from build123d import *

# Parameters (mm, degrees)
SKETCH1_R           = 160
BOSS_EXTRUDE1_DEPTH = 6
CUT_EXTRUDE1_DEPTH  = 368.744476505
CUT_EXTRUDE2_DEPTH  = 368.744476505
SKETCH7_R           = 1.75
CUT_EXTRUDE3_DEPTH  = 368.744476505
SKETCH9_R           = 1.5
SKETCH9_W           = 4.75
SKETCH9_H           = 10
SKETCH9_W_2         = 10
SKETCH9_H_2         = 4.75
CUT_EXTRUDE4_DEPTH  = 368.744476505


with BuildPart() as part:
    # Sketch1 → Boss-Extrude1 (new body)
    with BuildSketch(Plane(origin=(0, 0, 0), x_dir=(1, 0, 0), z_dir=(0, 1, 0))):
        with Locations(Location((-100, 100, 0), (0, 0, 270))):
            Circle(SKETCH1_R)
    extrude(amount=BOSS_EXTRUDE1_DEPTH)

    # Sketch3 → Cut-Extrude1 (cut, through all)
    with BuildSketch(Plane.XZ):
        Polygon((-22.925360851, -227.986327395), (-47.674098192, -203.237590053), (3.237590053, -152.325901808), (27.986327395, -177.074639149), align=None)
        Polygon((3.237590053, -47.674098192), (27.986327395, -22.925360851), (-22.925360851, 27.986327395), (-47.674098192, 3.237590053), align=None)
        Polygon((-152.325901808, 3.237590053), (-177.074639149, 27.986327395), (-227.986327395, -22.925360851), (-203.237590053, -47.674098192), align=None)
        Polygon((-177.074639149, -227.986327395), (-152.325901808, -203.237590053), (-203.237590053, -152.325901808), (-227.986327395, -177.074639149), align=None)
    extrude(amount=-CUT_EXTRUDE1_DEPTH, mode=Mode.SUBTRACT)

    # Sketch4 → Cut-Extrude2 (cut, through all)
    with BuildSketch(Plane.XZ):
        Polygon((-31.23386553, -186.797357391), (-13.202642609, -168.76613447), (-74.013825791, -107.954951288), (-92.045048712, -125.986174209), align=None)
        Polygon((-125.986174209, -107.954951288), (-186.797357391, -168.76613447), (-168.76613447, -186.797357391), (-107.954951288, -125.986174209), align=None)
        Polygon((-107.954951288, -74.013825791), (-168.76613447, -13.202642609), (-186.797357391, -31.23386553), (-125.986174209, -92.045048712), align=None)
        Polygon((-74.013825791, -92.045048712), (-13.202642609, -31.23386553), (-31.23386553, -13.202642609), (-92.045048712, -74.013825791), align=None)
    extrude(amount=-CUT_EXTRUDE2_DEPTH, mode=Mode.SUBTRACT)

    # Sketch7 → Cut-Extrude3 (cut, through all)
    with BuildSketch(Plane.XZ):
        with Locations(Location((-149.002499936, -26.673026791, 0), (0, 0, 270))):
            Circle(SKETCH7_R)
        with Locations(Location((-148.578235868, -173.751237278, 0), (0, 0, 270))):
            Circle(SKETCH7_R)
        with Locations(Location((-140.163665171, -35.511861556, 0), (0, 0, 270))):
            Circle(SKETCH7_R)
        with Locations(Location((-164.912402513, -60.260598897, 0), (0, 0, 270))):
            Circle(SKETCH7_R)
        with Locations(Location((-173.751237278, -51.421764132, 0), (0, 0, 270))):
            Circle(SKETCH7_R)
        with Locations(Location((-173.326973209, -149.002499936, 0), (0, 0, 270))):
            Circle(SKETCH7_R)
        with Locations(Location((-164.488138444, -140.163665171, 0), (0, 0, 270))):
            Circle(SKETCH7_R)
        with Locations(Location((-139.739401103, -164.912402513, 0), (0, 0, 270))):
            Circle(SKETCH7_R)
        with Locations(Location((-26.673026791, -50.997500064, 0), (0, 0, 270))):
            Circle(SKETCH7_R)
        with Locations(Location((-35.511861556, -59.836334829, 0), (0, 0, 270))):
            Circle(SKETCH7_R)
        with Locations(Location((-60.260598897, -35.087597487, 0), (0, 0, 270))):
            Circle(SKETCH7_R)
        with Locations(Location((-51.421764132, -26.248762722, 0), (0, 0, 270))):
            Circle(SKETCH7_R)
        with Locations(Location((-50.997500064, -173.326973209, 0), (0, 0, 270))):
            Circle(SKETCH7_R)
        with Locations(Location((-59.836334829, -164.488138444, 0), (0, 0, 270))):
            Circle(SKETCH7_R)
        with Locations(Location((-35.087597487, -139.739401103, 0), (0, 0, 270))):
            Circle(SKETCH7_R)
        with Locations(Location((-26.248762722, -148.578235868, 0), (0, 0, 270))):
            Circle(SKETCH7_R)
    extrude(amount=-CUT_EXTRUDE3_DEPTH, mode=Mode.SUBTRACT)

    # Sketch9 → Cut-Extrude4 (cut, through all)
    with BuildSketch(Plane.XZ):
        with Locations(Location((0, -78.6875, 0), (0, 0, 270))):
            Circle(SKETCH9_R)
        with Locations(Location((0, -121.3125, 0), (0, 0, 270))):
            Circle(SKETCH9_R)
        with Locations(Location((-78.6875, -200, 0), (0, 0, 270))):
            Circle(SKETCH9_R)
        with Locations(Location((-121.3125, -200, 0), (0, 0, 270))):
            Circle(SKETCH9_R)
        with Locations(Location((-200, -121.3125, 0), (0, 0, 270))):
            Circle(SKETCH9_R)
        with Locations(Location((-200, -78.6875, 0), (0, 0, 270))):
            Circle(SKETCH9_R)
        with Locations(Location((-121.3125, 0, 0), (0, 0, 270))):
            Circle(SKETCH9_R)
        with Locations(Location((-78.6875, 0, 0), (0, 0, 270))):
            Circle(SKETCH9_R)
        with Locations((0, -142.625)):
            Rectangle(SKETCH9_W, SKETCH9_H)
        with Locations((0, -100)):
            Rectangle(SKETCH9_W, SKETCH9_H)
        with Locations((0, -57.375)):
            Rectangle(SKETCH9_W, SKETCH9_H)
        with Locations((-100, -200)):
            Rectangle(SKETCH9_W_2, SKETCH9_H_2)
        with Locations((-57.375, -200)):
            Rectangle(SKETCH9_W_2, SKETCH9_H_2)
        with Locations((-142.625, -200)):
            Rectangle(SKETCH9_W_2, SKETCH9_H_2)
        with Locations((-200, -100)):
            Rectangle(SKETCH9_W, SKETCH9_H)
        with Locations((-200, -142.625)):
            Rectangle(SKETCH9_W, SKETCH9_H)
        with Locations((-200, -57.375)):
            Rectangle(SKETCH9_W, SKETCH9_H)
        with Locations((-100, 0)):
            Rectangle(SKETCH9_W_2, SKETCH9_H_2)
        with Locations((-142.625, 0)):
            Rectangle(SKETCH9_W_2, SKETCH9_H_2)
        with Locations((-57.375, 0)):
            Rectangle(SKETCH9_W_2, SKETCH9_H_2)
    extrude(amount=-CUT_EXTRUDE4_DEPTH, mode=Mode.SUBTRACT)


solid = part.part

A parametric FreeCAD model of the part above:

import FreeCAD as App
import Part
import Sketcher

V = App.Vector

doc = App.newDocument("Part")
body = doc.addObject("PartDesign::Body", "Body")

# Sketch on XZ plane
sketch1 = body.newObject("Sketcher::SketchObject", "Sketch")
sketch1.AttachmentSupport = (doc.getObject("XZ_Plane"), [""])
sketch1.MapMode = "FlatFace"
sketch1.addGeometry(Part.Circle(V(-100, -100, 0), V(0, 0, 1), 160), False)
sketch1.addConstraint(Sketcher.Constraint("Diameter", 0, 320.0))
sketch1.addConstraint(Sketcher.Constraint("DistanceX", 0, 3, -1, 1, 100.0))
sketch1.addConstraint(Sketcher.Constraint("DistanceY", 0, 3, -1, 1, 100.0))
pad1 = body.newObject("PartDesign::Pad", "Pad")
pad1.Profile = sketch1
pad1.Length = 6
pad1.Reversed = True

# Sketch on XZ plane
sketch2 = body.newObject("Sketcher::SketchObject", "Sketch001")
sketch2.AttachmentSupport = (doc.getObject("XZ_Plane"), [""])
sketch2.MapMode = "FlatFace"
sketch2.addGeometry(Part.LineSegment(V(-48, -203, 0), V(-23, -228, 0)), False)
sketch2.addGeometry(Part.LineSegment(V(-23, -228, 0), V(28, -177, 0)), False)
sketch2.addGeometry(Part.LineSegment(V(28, -177, 0), V(3, -152, 0)), False)
sketch2.addGeometry(Part.LineSegment(V(3, -152, 0), V(-48, -203, 0)), False)
sketch2.addGeometry(Part.LineSegment(V(3, -48, 0), V(28, -23, 0)), False)
sketch2.addGeometry(Part.LineSegment(V(28, -23, 0), V(-23, 28, 0)), False)
sketch2.addGeometry(Part.LineSegment(V(-23, 28, 0), V(-48, 3, 0)), False)
sketch2.addGeometry(Part.LineSegment(V(-48, 3, 0), V(3, -48, 0)), False)
sketch2.addGeometry(Part.LineSegment(V(-152, 3, 0), V(-177, 28, 0)), False)
sketch2.addGeometry(Part.LineSegment(V(-177, 28, 0), V(-228, -23, 0)), False)
sketch2.addGeometry(Part.LineSegment(V(-228, -23, 0), V(-203, -48, 0)), False)
sketch2.addGeometry(Part.LineSegment(V(-203, -48, 0), V(-152, 3, 0)), False)
sketch2.addGeometry(Part.LineSegment(V(-177, -228, 0), V(-152, -203, 0)), False)
sketch2.addGeometry(Part.LineSegment(V(-152, -203, 0), V(-203, -152, 0)), False)
sketch2.addGeometry(Part.LineSegment(V(-203, -152, 0), V(-228, -177, 0)), False)
sketch2.addGeometry(Part.LineSegment(V(-228, -177, 0), V(-177, -228, 0)), False)
sketch2.addConstraint(Sketcher.Constraint("Coincident", 0, 2, 1, 1))
sketch2.addConstraint(Sketcher.Constraint("Coincident", 1, 2, 2, 1))
sketch2.addConstraint(Sketcher.Constraint("Coincident", 2, 2, 3, 1))
sketch2.addConstraint(Sketcher.Constraint("Coincident", 3, 2, 0, 1))
sketch2.addConstraint(Sketcher.Constraint("Coincident", 4, 2, 5, 1))
sketch2.addConstraint(Sketcher.Constraint("Coincident", 5, 2, 6, 1))
sketch2.addConstraint(Sketcher.Constraint("Coincident", 6, 2, 7, 1))
sketch2.addConstraint(Sketcher.Constraint("Coincident", 7, 2, 4, 1))
sketch2.addConstraint(Sketcher.Constraint("Coincident", 8, 2, 9, 1))
sketch2.addConstraint(Sketcher.Constraint("Coincident", 9, 2, 10, 1))
sketch2.addConstraint(Sketcher.Constraint("Coincident", 10, 2, 11, 1))
sketch2.addConstraint(Sketcher.Constraint("Coincident", 11, 2, 8, 1))
sketch2.addConstraint(Sketcher.Constraint("Coincident", 12, 2, 13, 1))
sketch2.addConstraint(Sketcher.Constraint("Coincident", 13, 2, 14, 1))
sketch2.addConstraint(Sketcher.Constraint("Coincident", 14, 2, 15, 1))
sketch2.addConstraint(Sketcher.Constraint("Coincident", 15, 2, 12, 1))
sketch2.addConstraint(Sketcher.Constraint("Perpendicular", 0, 1))
sketch2.addConstraint(Sketcher.Constraint("Perpendicular", 1, 2))
sketch2.addConstraint(Sketcher.Constraint("Perpendicular", 2, 3))
sketch2.addConstraint(Sketcher.Constraint("Parallel", 3, 4))
sketch2.addConstraint(Sketcher.Constraint("Perpendicular", 4, 5))
sketch2.addConstraint(Sketcher.Constraint("Perpendicular", 5, 6))
sketch2.addConstraint(Sketcher.Constraint("Perpendicular", 6, 7))
sketch2.addConstraint(Sketcher.Constraint("Parallel", 7, 8))
sketch2.addConstraint(Sketcher.Constraint("Perpendicular", 8, 9))
sketch2.addConstraint(Sketcher.Constraint("Perpendicular", 9, 10))
sketch2.addConstraint(Sketcher.Constraint("Perpendicular", 10, 11))
sketch2.addConstraint(Sketcher.Constraint("Parallel", 11, 12))
sketch2.addConstraint(Sketcher.Constraint("Perpendicular", 12, 13))
sketch2.addConstraint(Sketcher.Constraint("Perpendicular", 13, 14))
sketch2.addConstraint(Sketcher.Constraint("Perpendicular", 14, 15))
sketch2.addConstraint(Sketcher.Constraint("Horizontal", 5, 2, 8, 2))
sketch2.addConstraint(Sketcher.Constraint("Horizontal", 4, 2, 9, 2))
sketch2.addConstraint(Sketcher.Constraint("Horizontal", 7, 2, 10, 2))
sketch2.addConstraint(Sketcher.Constraint("Horizontal", 3, 2, 12, 2))
sketch2.addConstraint(Sketcher.Constraint("Horizontal", 2, 2, 13, 2))
sketch2.addConstraint(Sketcher.Constraint("Horizontal", 1, 2, 14, 2))
sketch2.addConstraint(Sketcher.Constraint("Vertical", 1, 2, 4, 2))
sketch2.addConstraint(Sketcher.Constraint("Vertical", 0, 2, 5, 2))
sketch2.addConstraint(Sketcher.Constraint("Vertical", 3, 2, 6, 2))
sketch2.addConstraint(Sketcher.Constraint("Vertical", 11, 2, 12, 2))
sketch2.addConstraint(Sketcher.Constraint("Vertical", 10, 2, 13, 2))
sketch2.addConstraint(Sketcher.Constraint("Distance", 0, 35.0))
sketch2.addConstraint(Sketcher.Constraint("Distance", 1, 72.0))
sketch2.addConstraint(Sketcher.Constraint("DistanceY", 2, 2, -1, 1, 152.325902))
sketch2.addConstraint(Sketcher.Constraint("DistanceX", 3, 2, -1, 1, 47.674098))
sketch2.addConstraint(Sketcher.Constraint("DistanceY", 7, 2, -1, 1, 47.674098))
sketch2.addConstraint(Sketcher.Constraint("DistanceX", 11, 2, -1, 1, 152.325902))
pocket1 = body.newObject("PartDesign::Pocket", "Pocket")
pocket1.Profile = sketch2
pocket1.Type = "ThroughAll"

# Sketch on XZ plane
sketch3 = body.newObject("Sketcher::SketchObject", "Sketch002")
sketch3.AttachmentSupport = (doc.getObject("XZ_Plane"), [""])
sketch3.MapMode = "FlatFace"
sketch3.addGeometry(Part.LineSegment(V(-31, -187, 0), V(-13, -169, 0)), False)
sketch3.addGeometry(Part.LineSegment(V(-13, -169, 0), V(-74, -108, 0)), False)
sketch3.addGeometry(Part.LineSegment(V(-74, -108, 0), V(-92, -126, 0)), False)
sketch3.addGeometry(Part.LineSegment(V(-92, -126, 0), V(-31, -187, 0)), False)
sketch3.addGeometry(Part.LineSegment(V(-126, -108, 0), V(-187, -169, 0)), False)
sketch3.addGeometry(Part.LineSegment(V(-187, -169, 0), V(-169, -187, 0)), False)
sketch3.addGeometry(Part.LineSegment(V(-169, -187, 0), V(-108, -126, 0)), False)
sketch3.addGeometry(Part.LineSegment(V(-108, -126, 0), V(-126, -108, 0)), False)
sketch3.addGeometry(Part.LineSegment(V(-108, -74, 0), V(-169, -13, 0)), False)
sketch3.addGeometry(Part.LineSegment(V(-169, -13, 0), V(-187, -31, 0)), False)
sketch3.addGeometry(Part.LineSegment(V(-187, -31, 0), V(-126, -92, 0)), False)
sketch3.addGeometry(Part.LineSegment(V(-126, -92, 0), V(-108, -74, 0)), False)
sketch3.addGeometry(Part.LineSegment(V(-74, -92, 0), V(-13, -31, 0)), False)
sketch3.addGeometry(Part.LineSegment(V(-13, -31, 0), V(-31, -13, 0)), False)
sketch3.addGeometry(Part.LineSegment(V(-31, -13, 0), V(-92, -74, 0)), False)
sketch3.addGeometry(Part.LineSegment(V(-92, -74, 0), V(-74, -92, 0)), False)
sketch3.addConstraint(Sketcher.Constraint("Coincident", 0, 2, 1, 1))
sketch3.addConstraint(Sketcher.Constraint("Coincident", 1, 2, 2, 1))
sketch3.addConstraint(Sketcher.Constraint("Coincident", 2, 2, 3, 1))
sketch3.addConstraint(Sketcher.Constraint("Coincident", 3, 2, 0, 1))
sketch3.addConstraint(Sketcher.Constraint("Coincident", 4, 2, 5, 1))
sketch3.addConstraint(Sketcher.Constraint("Coincident", 5, 2, 6, 1))
sketch3.addConstraint(Sketcher.Constraint("Coincident", 6, 2, 7, 1))
sketch3.addConstraint(Sketcher.Constraint("Coincident", 7, 2, 4, 1))
sketch3.addConstraint(Sketcher.Constraint("Coincident", 8, 2, 9, 1))
sketch3.addConstraint(Sketcher.Constraint("Coincident", 9, 2, 10, 1))
sketch3.addConstraint(Sketcher.Constraint("Coincident", 10, 2, 11, 1))
sketch3.addConstraint(Sketcher.Constraint("Coincident", 11, 2, 8, 1))
sketch3.addConstraint(Sketcher.Constraint("Coincident", 12, 2, 13, 1))
sketch3.addConstraint(Sketcher.Constraint("Coincident", 13, 2, 14, 1))
sketch3.addConstraint(Sketcher.Constraint("Coincident", 14, 2, 15, 1))
sketch3.addConstraint(Sketcher.Constraint("Coincident", 15, 2, 12, 1))
sketch3.addConstraint(Sketcher.Constraint("Perpendicular", 0, 1))
sketch3.addConstraint(Sketcher.Constraint("Perpendicular", 1, 2))
sketch3.addConstraint(Sketcher.Constraint("Perpendicular", 2, 3))
sketch3.addConstraint(Sketcher.Constraint("Perpendicular", 3, 4))
sketch3.addConstraint(Sketcher.Constraint("Perpendicular", 4, 5))
sketch3.addConstraint(Sketcher.Constraint("Perpendicular", 5, 6))
sketch3.addConstraint(Sketcher.Constraint("Perpendicular", 6, 7))
sketch3.addConstraint(Sketcher.Constraint("Parallel", 7, 8))
sketch3.addConstraint(Sketcher.Constraint("Perpendicular", 8, 9))
sketch3.addConstraint(Sketcher.Constraint("Perpendicular", 9, 10))
sketch3.addConstraint(Sketcher.Constraint("Perpendicular", 10, 11))
sketch3.addConstraint(Sketcher.Constraint("Parallel", 11, 12))
sketch3.addConstraint(Sketcher.Constraint("Perpendicular", 12, 13))
sketch3.addConstraint(Sketcher.Constraint("Perpendicular", 13, 14))
sketch3.addConstraint(Sketcher.Constraint("Perpendicular", 14, 15))
sketch3.addConstraint(Sketcher.Constraint("Horizontal", 0, 2, 4, 2))
sketch3.addConstraint(Sketcher.Constraint("Horizontal", 3, 2, 5, 2))
sketch3.addConstraint(Sketcher.Constraint("Horizontal", 2, 2, 6, 2))
sketch3.addConstraint(Sketcher.Constraint("Horizontal", 9, 2, 12, 2))
sketch3.addConstraint(Sketcher.Constraint("Horizontal", 8, 2, 13, 2))
sketch3.addConstraint(Sketcher.Constraint("Horizontal", 11, 2, 14, 2))
sketch3.addConstraint(Sketcher.Constraint("Vertical", 5, 2, 8, 2))
sketch3.addConstraint(Sketcher.Constraint("Vertical", 4, 2, 9, 2))
sketch3.addConstraint(Sketcher.Constraint("Vertical", 7, 2, 10, 2))
sketch3.addConstraint(Sketcher.Constraint("Vertical", 0, 2, 12, 2))
sketch3.addConstraint(Sketcher.Constraint("Vertical", 3, 2, 13, 2))
sketch3.addConstraint(Sketcher.Constraint("Distance", 1, 86.0))
sketch3.addConstraint(Sketcher.Constraint("Distance", 0, 25.5))
sketch3.addConstraint(Sketcher.Constraint("DistanceY", 1, 2, -1, 1, 107.954951))
sketch3.addConstraint(Sketcher.Constraint("DistanceX", 2, 2, -1, 1, 92.045049))
sketch3.addConstraint(Sketcher.Constraint("DistanceX", 6, 2, -1, 1, 107.954951))
sketch3.addConstraint(Sketcher.Constraint("DistanceY", 10, 2, -1, 1, 92.045049))
pocket2 = body.newObject("PartDesign::Pocket", "Pocket001")
pocket2.Profile = sketch3
pocket2.Type = "ThroughAll"

# Sketch on XZ plane
sketch4 = body.newObject("Sketcher::SketchObject", "Sketch003")
sketch4.AttachmentSupport = (doc.getObject("XZ_Plane"), [""])
sketch4.MapMode = "FlatFace"
sketch4.addGeometry(Part.Circle(V(-149, -26.7, 0), V(0, 0, 1), 1.8), False)
sketch4.addGeometry(Part.Circle(V(-148.6, -173.8, 0), V(0, 0, 1), 1.8), False)
sketch4.addGeometry(Part.Circle(V(-140.2, -35.5, 0), V(0, 0, 1), 1.8), False)
sketch4.addGeometry(Part.Circle(V(-164.9, -60.3, 0), V(0, 0, 1), 1.8), False)
sketch4.addGeometry(Part.Circle(V(-173.8, -51.4, 0), V(0, 0, 1), 1.8), False)
sketch4.addGeometry(Part.Circle(V(-173.3, -149, 0), V(0, 0, 1), 1.8), False)
sketch4.addGeometry(Part.Circle(V(-164.5, -140.2, 0), V(0, 0, 1), 1.8), False)
sketch4.addGeometry(Part.Circle(V(-139.7, -164.9, 0), V(0, 0, 1), 1.8), False)
sketch4.addGeometry(Part.Circle(V(-26.7, -51, 0), V(0, 0, 1), 1.8), False)
sketch4.addGeometry(Part.Circle(V(-35.5, -59.8, 0), V(0, 0, 1), 1.8), False)
sketch4.addGeometry(Part.Circle(V(-60.3, -35.1, 0), V(0, 0, 1), 1.8), False)
sketch4.addGeometry(Part.Circle(V(-51.4, -26.2, 0), V(0, 0, 1), 1.8), False)
sketch4.addGeometry(Part.Circle(V(-51, -173.3, 0), V(0, 0, 1), 1.8), False)
sketch4.addGeometry(Part.Circle(V(-59.8, -164.5, 0), V(0, 0, 1), 1.8), False)
sketch4.addGeometry(Part.Circle(V(-35.1, -139.7, 0), V(0, 0, 1), 1.8), False)
sketch4.addGeometry(Part.Circle(V(-26.2, -148.6, 0), V(0, 0, 1), 1.8), False)
sketch4.addConstraint(Sketcher.Constraint("Equal", 0, 1))
sketch4.addConstraint(Sketcher.Constraint("Equal", 1, 2))
sketch4.addConstraint(Sketcher.Constraint("Equal", 2, 3))
sketch4.addConstraint(Sketcher.Constraint("Equal", 3, 4))
sketch4.addConstraint(Sketcher.Constraint("Equal", 4, 5))
sketch4.addConstraint(Sketcher.Constraint("Equal", 5, 6))
sketch4.addConstraint(Sketcher.Constraint("Equal", 6, 7))
sketch4.addConstraint(Sketcher.Constraint("Equal", 7, 8))
sketch4.addConstraint(Sketcher.Constraint("Equal", 8, 9))
sketch4.addConstraint(Sketcher.Constraint("Equal", 9, 10))
sketch4.addConstraint(Sketcher.Constraint("Equal", 10, 11))
sketch4.addConstraint(Sketcher.Constraint("Equal", 11, 12))
sketch4.addConstraint(Sketcher.Constraint("Equal", 12, 13))
sketch4.addConstraint(Sketcher.Constraint("Equal", 13, 14))
sketch4.addConstraint(Sketcher.Constraint("Equal", 14, 15))
sketch4.addConstraint(Sketcher.Constraint("Diameter", 0, 3.5))
sketch4.addConstraint(Sketcher.Constraint("DistanceX", 4, 3, 1, 3, 25.173001))
sketch4.addConstraint(Sketcher.Constraint("DistanceX", 3, 3, 7, 3, 25.173001))
sketch4.addConstraint(Sketcher.Constraint("DistanceY", 3, 3, 10, 3, 25.173001))
sketch4.addConstraint(Sketcher.Constraint("DistanceY", 7, 3, 14, 3, 25.173001))
sketch4.addConstraint(Sketcher.Constraint("DistanceX", 0, 3, -1, 1, 149.0025))
sketch4.addConstraint(Sketcher.Constraint("DistanceY", 3, 3, -1, 1, 60.260599))
sketch4.addConstraint(Sketcher.Constraint("DistanceY", 5, 3, -1, 1, 149.0025))
sketch4.addConstraint(Sketcher.Constraint("DistanceX", 7, 3, -1, 1, 139.739401))
sketch4.addConstraint(Sketcher.Constraint("DistanceY", 8, 3, -1, 1, 50.9975))
sketch4.addConstraint(Sketcher.Constraint("DistanceX", 10, 3, -1, 1, 60.260599))
sketch4.addConstraint(Sketcher.Constraint("DistanceX", 12, 3, -1, 1, 50.9975))
sketch4.addConstraint(Sketcher.Constraint("DistanceY", 14, 3, -1, 1, 139.739401))
sketch4.addConstraint(Sketcher.Constraint("DistanceX", 4, 3, 6, 3, 9.263099))
sketch4.addConstraint(Sketcher.Constraint("DistanceY", 6, 3, 4, 3, 88.741901))
sketch4.addConstraint(Sketcher.Constraint("DistanceX", 2, 3, 11, 3, 88.741901))
sketch4.addConstraint(Sketcher.Constraint("DistanceY", 2, 3, 11, 3, 9.263099))
sketch4.addConstraint(Sketcher.Constraint("DistanceX", 1, 3, 13, 3, 88.741901))
sketch4.addConstraint(Sketcher.Constraint("DistanceY", 1, 3, 13, 3, 9.263099))
sketch4.addConstraint(Sketcher.Constraint("DistanceX", 9, 3, 15, 3, 9.263099))
sketch4.addConstraint(Sketcher.Constraint("DistanceY", 15, 3, 9, 3, 88.741901))
sketch4.addConstraint(Sketcher.Constraint("DistanceY", 2, 3, -1, 1, 35.511862))
sketch4.addConstraint(Sketcher.Constraint("DistanceX", 6, 3, -1, 1, 164.488138))
sketch4.addConstraint(Sketcher.Constraint("DistanceX", 9, 3, -1, 1, 35.511862))
sketch4.addConstraint(Sketcher.Constraint("DistanceY", 13, 3, -1, 1, 164.488138))
sketch4.addConstraint(Sketcher.Constraint("DistanceY", 1, 3, 0, 3, 147.07821))
sketch4.addConstraint(Sketcher.Constraint("DistanceX", 1, 3, 2, 3, 8.414571))
sketch4.addConstraint(Sketcher.Constraint("DistanceX", 5, 3, 3, 3, 8.414571))
sketch4.addConstraint(Sketcher.Constraint("DistanceY", 7, 3, 4, 3, 113.490638))
sketch4.addConstraint(Sketcher.Constraint("DistanceX", 2, 3, 8, 3, 113.490638))
sketch4.addConstraint(Sketcher.Constraint("DistanceY", 9, 3, 0, 3, 33.163308))
sketch4.addConstraint(Sketcher.Constraint("DistanceY", 12, 3, 7, 3, 8.414571))
sketch4.addConstraint(Sketcher.Constraint("DistanceX", 14, 3, 8, 3, 8.414571))
pocket3 = body.newObject("PartDesign::Pocket", "Pocket002")
pocket3.Profile = sketch4
pocket3.Type = "ThroughAll"

# Sketch on XZ plane
sketch5 = body.newObject("Sketcher::SketchObject", "Sketch004")
sketch5.AttachmentSupport = (doc.getObject("XZ_Plane"), [""])
sketch5.MapMode = "FlatFace"
sketch5.addGeometry(Part.Circle(V(0, -78.7, 0), V(0, 0, 1), 1.5), False)
sketch5.addGeometry(Part.Circle(V(0, -121.3, 0), V(0, 0, 1), 1.5), False)
sketch5.addGeometry(Part.Circle(V(-78.7, -200, 0), V(0, 0, 1), 1.5), False)
sketch5.addGeometry(Part.Circle(V(-121.3, -200, 0), V(0, 0, 1), 1.5), False)
sketch5.addGeometry(Part.Circle(V(-200, -121.3, 0), V(0, 0, 1), 1.5), False)
sketch5.addGeometry(Part.Circle(V(-200, -78.7, 0), V(0, 0, 1), 1.5), False)
sketch5.addGeometry(Part.Circle(V(-121.3, 0, 0), V(0, 0, 1), 1.5), False)
sketch5.addGeometry(Part.Circle(V(-78.7, 0, 0), V(0, 0, 1), 1.5), False)
sketch5.addGeometry(Part.LineSegment(V(-2.4, -137.6, 0), V(-2.4, -147.6, 0)), False)
sketch5.addGeometry(Part.LineSegment(V(-2.4, -147.6, 0), V(2.4, -147.6, 0)), False)
sketch5.addGeometry(Part.LineSegment(V(2.4, -147.6, 0), V(2.4, -137.6, 0)), False)
sketch5.addGeometry(Part.LineSegment(V(2.4, -137.6, 0), V(-2.4, -137.6, 0)), False)
sketch5.addGeometry(Part.LineSegment(V(-2.4, -95, 0), V(-2.4, -105, 0)), False)
sketch5.addGeometry(Part.LineSegment(V(-2.4, -105, 0), V(2.4, -105, 0)), False)
sketch5.addGeometry(Part.LineSegment(V(2.4, -105, 0), V(2.4, -95, 0)), False)
sketch5.addGeometry(Part.LineSegment(V(2.4, -95, 0), V(-2.4, -95, 0)), False)
sketch5.addGeometry(Part.LineSegment(V(-2.4, -52.4, 0), V(-2.4, -62.4, 0)), False)
sketch5.addGeometry(Part.LineSegment(V(-2.4, -62.4, 0), V(2.4, -62.4, 0)), False)
sketch5.addGeometry(Part.LineSegment(V(2.4, -62.4, 0), V(2.4, -52.4, 0)), False)
sketch5.addGeometry(Part.LineSegment(V(2.4, -52.4, 0), V(-2.4, -52.4, 0)), False)
sketch5.addGeometry(Part.LineSegment(V(-105, -197.6, 0), V(-105, -202.4, 0)), False)
sketch5.addGeometry(Part.LineSegment(V(-105, -202.4, 0), V(-95, -202.4, 0)), False)
sketch5.addGeometry(Part.LineSegment(V(-95, -202.4, 0), V(-95, -197.6, 0)), False)
sketch5.addGeometry(Part.LineSegment(V(-95, -197.6, 0), V(-105, -197.6, 0)), False)
sketch5.addGeometry(Part.LineSegment(V(-62.4, -197.6, 0), V(-62.4, -202.4, 0)), False)
sketch5.addGeometry(Part.LineSegment(V(-62.4, -202.4, 0), V(-52.4, -202.4, 0)), False)
sketch5.addGeometry(Part.LineSegment(V(-52.4, -202.4, 0), V(-52.4, -197.6, 0)), False)
sketch5.addGeometry(Part.LineSegment(V(-52.4, -197.6, 0), V(-62.4, -197.6, 0)), False)
sketch5.addGeometry(Part.LineSegment(V(-147.6, -197.6, 0), V(-147.6, -202.4, 0)), False)
sketch5.addGeometry(Part.LineSegment(V(-147.6, -202.4, 0), V(-137.6, -202.4, 0)), False)
sketch5.addGeometry(Part.LineSegment(V(-137.6, -202.4, 0), V(-137.6, -197.6, 0)), False)
sketch5.addGeometry(Part.LineSegment(V(-137.6, -197.6, 0), V(-147.6, -197.6, 0)), False)
sketch5.addGeometry(Part.LineSegment(V(-202.4, -95, 0), V(-202.4, -105, 0)), False)
sketch5.addGeometry(Part.LineSegment(V(-202.4, -105, 0), V(-197.6, -105, 0)), False)
sketch5.addGeometry(Part.LineSegment(V(-197.6, -105, 0), V(-197.6, -95, 0)), False)
sketch5.addGeometry(Part.LineSegment(V(-197.6, -95, 0), V(-202.4, -95, 0)), False)
sketch5.addGeometry(Part.LineSegment(V(-202.4, -137.6, 0), V(-202.4, -147.6, 0)), False)
sketch5.addGeometry(Part.LineSegment(V(-202.4, -147.6, 0), V(-197.6, -147.6, 0)), False)
sketch5.addGeometry(Part.LineSegment(V(-197.6, -147.6, 0), V(-197.6, -137.6, 0)), False)
sketch5.addGeometry(Part.LineSegment(V(-197.6, -137.6, 0), V(-202.4, -137.6, 0)), False)
sketch5.addGeometry(Part.LineSegment(V(-202.4, -52.4, 0), V(-202.4, -62.4, 0)), False)
sketch5.addGeometry(Part.LineSegment(V(-202.4, -62.4, 0), V(-197.6, -62.4, 0)), False)
sketch5.addGeometry(Part.LineSegment(V(-197.6, -62.4, 0), V(-197.6, -52.4, 0)), False)
sketch5.addGeometry(Part.LineSegment(V(-197.6, -52.4, 0), V(-202.4, -52.4, 0)), False)
sketch5.addGeometry(Part.LineSegment(V(-105, 2.4, 0), V(-105, -2.4, 0)), False)
sketch5.addGeometry(Part.LineSegment(V(-105, -2.4, 0), V(-95, -2.4, 0)), False)
sketch5.addGeometry(Part.LineSegment(V(-95, -2.4, 0), V(-95, 2.4, 0)), False)
sketch5.addGeometry(Part.LineSegment(V(-95, 2.4, 0), V(-105, 2.4, 0)), False)
sketch5.addGeometry(Part.LineSegment(V(-147.6, 2.4, 0), V(-147.6, -2.4, 0)), False)
sketch5.addGeometry(Part.LineSegment(V(-147.6, -2.4, 0), V(-137.6, -2.4, 0)), False)
sketch5.addGeometry(Part.LineSegment(V(-137.6, -2.4, 0), V(-137.6, 2.4, 0)), False)
sketch5.addGeometry(Part.LineSegment(V(-137.6, 2.4, 0), V(-147.6, 2.4, 0)), False)
sketch5.addGeometry(Part.LineSegment(V(-62.4, 2.4, 0), V(-62.4, -2.4, 0)), False)
sketch5.addGeometry(Part.LineSegment(V(-62.4, -2.4, 0), V(-52.4, -2.4, 0)), False)
sketch5.addGeometry(Part.LineSegment(V(-52.4, -2.4, 0), V(-52.4, 2.4, 0)), False)
sketch5.addGeometry(Part.LineSegment(V(-52.4, 2.4, 0), V(-62.4, 2.4, 0)), False)
sketch5.addConstraint(Sketcher.Constraint("Coincident", 8, 2, 9, 1))
sketch5.addConstraint(Sketcher.Constraint("Coincident", 9, 2, 10, 1))
sketch5.addConstraint(Sketcher.Constraint("Coincident", 10, 2, 11, 1))
sketch5.addConstraint(Sketcher.Constraint("Coincident", 11, 2, 8, 1))
sketch5.addConstraint(Sketcher.Constraint("Coincident", 12, 2, 13, 1))
sketch5.addConstraint(Sketcher.Constraint("Coincident", 13, 2, 14, 1))
sketch5.addConstraint(Sketcher.Constraint("Coincident", 14, 2, 15, 1))
sketch5.addConstraint(Sketcher.Constraint("Coincident", 15, 2, 12, 1))
sketch5.addConstraint(Sketcher.Constraint("Coincident", 16, 2, 17, 1))
sketch5.addConstraint(Sketcher.Constraint("Coincident", 17, 2, 18, 1))
sketch5.addConstraint(Sketcher.Constraint("Coincident", 18, 2, 19, 1))
sketch5.addConstraint(Sketcher.Constraint("Coincident", 19, 2, 16, 1))
sketch5.addConstraint(Sketcher.Constraint("Coincident", 20, 2, 21, 1))
sketch5.addConstraint(Sketcher.Constraint("Coincident", 21, 2, 22, 1))
sketch5.addConstraint(Sketcher.Constraint("Coincident", 22, 2, 23, 1))
sketch5.addConstraint(Sketcher.Constraint("Coincident", 23, 2, 20, 1))
sketch5.addConstraint(Sketcher.Constraint("Coincident", 24, 2, 25, 1))
sketch5.addConstraint(Sketcher.Constraint("Coincident", 25, 2, 26, 1))
sketch5.addConstraint(Sketcher.Constraint("Coincident", 26, 2, 27, 1))
sketch5.addConstraint(Sketcher.Constraint("Coincident", 27, 2, 24, 1))
sketch5.addConstraint(Sketcher.Constraint("Coincident", 28, 2, 29, 1))
sketch5.addConstraint(Sketcher.Constraint("Coincident", 29, 2, 30, 1))
sketch5.addConstraint(Sketcher.Constraint("Coincident", 30, 2, 31, 1))
sketch5.addConstraint(Sketcher.Constraint("Coincident", 31, 2, 28, 1))
sketch5.addConstraint(Sketcher.Constraint("Coincident", 32, 2, 33, 1))
sketch5.addConstraint(Sketcher.Constraint("Coincident", 33, 2, 34, 1))
sketch5.addConstraint(Sketcher.Constraint("Coincident", 34, 2, 35, 1))
sketch5.addConstraint(Sketcher.Constraint("Coincident", 35, 2, 32, 1))
sketch5.addConstraint(Sketcher.Constraint("Coincident", 36, 2, 37, 1))
sketch5.addConstraint(Sketcher.Constraint("Coincident", 37, 2, 38, 1))
sketch5.addConstraint(Sketcher.Constraint("Coincident", 38, 2, 39, 1))
sketch5.addConstraint(Sketcher.Constraint("Coincident", 39, 2, 36, 1))
sketch5.addConstraint(Sketcher.Constraint("Coincident", 40, 2, 41, 1))
sketch5.addConstraint(Sketcher.Constraint("Coincident", 41, 2, 42, 1))
sketch5.addConstraint(Sketcher.Constraint("Coincident", 42, 2, 43, 1))
sketch5.addConstraint(Sketcher.Constraint("Coincident", 43, 2, 40, 1))
sketch5.addConstraint(Sketcher.Constraint("Coincident", 44, 2, 45, 1))
sketch5.addConstraint(Sketcher.Constraint("Coincident", 45, 2, 46, 1))
sketch5.addConstraint(Sketcher.Constraint("Coincident", 46, 2, 47, 1))
sketch5.addConstraint(Sketcher.Constraint("Coincident", 47, 2, 44, 1))
sketch5.addConstraint(Sketcher.Constraint("Coincident", 48, 2, 49, 1))
sketch5.addConstraint(Sketcher.Constraint("Coincident", 49, 2, 50, 1))
sketch5.addConstraint(Sketcher.Constraint("Coincident", 50, 2, 51, 1))
sketch5.addConstraint(Sketcher.Constraint("Coincident", 51, 2, 48, 1))
sketch5.addConstraint(Sketcher.Constraint("Coincident", 52, 2, 53, 1))
sketch5.addConstraint(Sketcher.Constraint("Coincident", 53, 2, 54, 1))
sketch5.addConstraint(Sketcher.Constraint("Coincident", 54, 2, 55, 1))
sketch5.addConstraint(Sketcher.Constraint("Coincident", 55, 2, 52, 1))
sketch5.addConstraint(Sketcher.Constraint("Vertical", 8))
sketch5.addConstraint(Sketcher.Constraint("Horizontal", 9))
sketch5.addConstraint(Sketcher.Constraint("Vertical", 10))
sketch5.addConstraint(Sketcher.Constraint("Horizontal", 11))
sketch5.addConstraint(Sketcher.Constraint("Vertical", 12))
sketch5.addConstraint(Sketcher.Constraint("Horizontal", 13))
sketch5.addConstraint(Sketcher.Constraint("Vertical", 14))
sketch5.addConstraint(Sketcher.Constraint("Horizontal", 15))
sketch5.addConstraint(Sketcher.Constraint("Vertical", 16))
sketch5.addConstraint(Sketcher.Constraint("Horizontal", 17))
sketch5.addConstraint(Sketcher.Constraint("Vertical", 18))
sketch5.addConstraint(Sketcher.Constraint("Horizontal", 19))
sketch5.addConstraint(Sketcher.Constraint("Vertical", 20))
sketch5.addConstraint(Sketcher.Constraint("Horizontal", 21))
sketch5.addConstraint(Sketcher.Constraint("Vertical", 22))
sketch5.addConstraint(Sketcher.Constraint("Horizontal", 23))
sketch5.addConstraint(Sketcher.Constraint("Vertical", 24))
sketch5.addConstraint(Sketcher.Constraint("Horizontal", 25))
sketch5.addConstraint(Sketcher.Constraint("Vertical", 26))
sketch5.addConstraint(Sketcher.Constraint("Horizontal", 27))
sketch5.addConstraint(Sketcher.Constraint("Vertical", 28))
sketch5.addConstraint(Sketcher.Constraint("Horizontal", 29))
sketch5.addConstraint(Sketcher.Constraint("Vertical", 30))
sketch5.addConstraint(Sketcher.Constraint("Horizontal", 31))
sketch5.addConstraint(Sketcher.Constraint("Vertical", 32))
sketch5.addConstraint(Sketcher.Constraint("Horizontal", 33))
sketch5.addConstraint(Sketcher.Constraint("Vertical", 34))
sketch5.addConstraint(Sketcher.Constraint("Horizontal", 35))
sketch5.addConstraint(Sketcher.Constraint("Vertical", 36))
sketch5.addConstraint(Sketcher.Constraint("Horizontal", 37))
sketch5.addConstraint(Sketcher.Constraint("Vertical", 38))
sketch5.addConstraint(Sketcher.Constraint("Horizontal", 39))
sketch5.addConstraint(Sketcher.Constraint("Vertical", 40))
sketch5.addConstraint(Sketcher.Constraint("Horizontal", 41))
sketch5.addConstraint(Sketcher.Constraint("Vertical", 42))
sketch5.addConstraint(Sketcher.Constraint("Horizontal", 43))
sketch5.addConstraint(Sketcher.Constraint("Vertical", 44))
sketch5.addConstraint(Sketcher.Constraint("Horizontal", 45))
sketch5.addConstraint(Sketcher.Constraint("Vertical", 46))
sketch5.addConstraint(Sketcher.Constraint("Horizontal", 47))
sketch5.addConstraint(Sketcher.Constraint("Vertical", 48))
sketch5.addConstraint(Sketcher.Constraint("Horizontal", 49))
sketch5.addConstraint(Sketcher.Constraint("Vertical", 50))
sketch5.addConstraint(Sketcher.Constraint("Horizontal", 51))
sketch5.addConstraint(Sketcher.Constraint("Vertical", 52))
sketch5.addConstraint(Sketcher.Constraint("Horizontal", 53))
sketch5.addConstraint(Sketcher.Constraint("Vertical", 54))
sketch5.addConstraint(Sketcher.Constraint("Horizontal", 55))
sketch5.addConstraint(Sketcher.Constraint("Equal", 0, 1))
sketch5.addConstraint(Sketcher.Constraint("Equal", 1, 2))
sketch5.addConstraint(Sketcher.Constraint("Equal", 2, 3))
sketch5.addConstraint(Sketcher.Constraint("Equal", 3, 4))
sketch5.addConstraint(Sketcher.Constraint("Equal", 4, 5))
sketch5.addConstraint(Sketcher.Constraint("Equal", 5, 6))
sketch5.addConstraint(Sketcher.Constraint("Equal", 6, 7))
sketch5.addConstraint(Sketcher.Constraint("PointOnObject", 0, 3, -2))
sketch5.addConstraint(Sketcher.Constraint("PointOnObject", 1, 3, -2))
sketch5.addConstraint(Sketcher.Constraint("PointOnObject", 6, 3, -1))
sketch5.addConstraint(Sketcher.Constraint("PointOnObject", 7, 3, -1))
sketch5.addConstraint(Sketcher.Constraint("Horizontal", 2, 3, 3, 3))
sketch5.addConstraint(Sketcher.Constraint("Horizontal", 1, 3, 4, 3))
sketch5.addConstraint(Sketcher.Constraint("Horizontal", 0, 3, 5, 3))
sketch5.addConstraint(Sketcher.Constraint("Horizontal", 21, 2, 24, 2))
sketch5.addConstraint(Sketcher.Constraint("Horizontal", 23, 2, 26, 2))
sketch5.addConstraint(Sketcher.Constraint("Horizontal", 25, 2, 28, 2))
sketch5.addConstraint(Sketcher.Constraint("Horizontal", 27, 2, 30, 2))
sketch5.addConstraint(Sketcher.Constraint("Horizontal", 13, 2, 32, 2))
sketch5.addConstraint(Sketcher.Constraint("Horizontal", 15, 2, 34, 2))
sketch5.addConstraint(Sketcher.Constraint("Horizontal", 9, 2, 36, 2))
sketch5.addConstraint(Sketcher.Constraint("Horizontal", 11, 2, 38, 2))
sketch5.addConstraint(Sketcher.Constraint("Horizontal", 17, 2, 40, 2))
sketch5.addConstraint(Sketcher.Constraint("Horizontal", 19, 2, 42, 2))
sketch5.addConstraint(Sketcher.Constraint("Horizontal", 45, 2, 48, 2))
sketch5.addConstraint(Sketcher.Constraint("Horizontal", 47, 2, 50, 2))
sketch5.addConstraint(Sketcher.Constraint("Horizontal", 49, 2, 52, 2))
sketch5.addConstraint(Sketcher.Constraint("Horizontal", 51, 2, 54, 2))
sketch5.addConstraint(Sketcher.Constraint("Vertical", 4, 3, 5, 3))
sketch5.addConstraint(Sketcher.Constraint("Vertical", 3, 3, 6, 3))
sketch5.addConstraint(Sketcher.Constraint("Vertical", 2, 3, 7, 3))
sketch5.addConstraint(Sketcher.Constraint("Vertical", 11, 2, 12, 2))
sketch5.addConstraint(Sketcher.Constraint("Vertical", 10, 2, 13, 2))
sketch5.addConstraint(Sketcher.Constraint("Vertical", 15, 2, 16, 2))
sketch5.addConstraint(Sketcher.Constraint("Vertical", 14, 2, 17, 2))
sketch5.addConstraint(Sketcher.Constraint("Vertical", 35, 2, 36, 2))
sketch5.addConstraint(Sketcher.Constraint("Vertical", 34, 2, 37, 2))
sketch5.addConstraint(Sketcher.Constraint("Vertical", 39, 2, 40, 2))
sketch5.addConstraint(Sketcher.Constraint("Vertical", 38, 2, 41, 2))
sketch5.addConstraint(Sketcher.Constraint("Vertical", 23, 2, 44, 2))
sketch5.addConstraint(Sketcher.Constraint("Vertical", 22, 2, 45, 2))
sketch5.addConstraint(Sketcher.Constraint("Vertical", 31, 2, 48, 2))
sketch5.addConstraint(Sketcher.Constraint("Vertical", 30, 2, 49, 2))
sketch5.addConstraint(Sketcher.Constraint("Vertical", 27, 2, 52, 2))
sketch5.addConstraint(Sketcher.Constraint("Vertical", 26, 2, 53, 2))
sketch5.addConstraint(Sketcher.Constraint("Equal", 23, 25))
sketch5.addConstraint(Sketcher.Constraint("Equal", 27, 29))
sketch5.addConstraint(Sketcher.Constraint("Equal", 19, 33))
sketch5.addConstraint(Sketcher.Constraint("Equal", 55, 8))
sketch5.addConstraint(Sketcher.Constraint("Equal", 10, 12))
sketch5.addConstraint(Sketcher.Constraint("Equal", 14, 16))
sketch5.addConstraint(Sketcher.Constraint("Equal", 43, 20))
sketch5.addConstraint(Sketcher.Constraint("Equal", 30, 44))
sketch5.addConstraint(Sketcher.Constraint("Diameter", 0, 3.0))
sketch5.addConstraint(Sketcher.Constraint("DistanceX", 21, 1, 21, 2, 10.0))
sketch5.addConstraint(Sketcher.Constraint("DistanceY", 2, 3, -1, 1, 200.0))
sketch5.addConstraint(Sketcher.Constraint("DistanceX", 4, 3, -1, 1, 200.0))
sketch5.addConstraint(Sketcher.Constraint("DistanceY", 12, 2, -1, 1, 105.0))
sketch5.addConstraint(Sketcher.Constraint("DistanceX", 20, 2, -1, 1, 105.0))
sketch5.addConstraint(Sketcher.Constraint("DistanceY", 22, 2, 8, 2, 50.0))
sketch5.addConstraint(Sketcher.Constraint("DistanceX", 33, 2, 31, 2, 50.0))
sketch5.addConstraint(Sketcher.Constraint("DistanceY", 42, 2, 44, 2, 50.0))
sketch5.addConstraint(Sketcher.Constraint("DistanceX", 9, 1, 9, 2, 4.75))
sketch5.addConstraint(Sketcher.Constraint("DistanceX", 8, 2, -1, 1, 2.375))
sketch5.addConstraint(Sketcher.Constraint("DistanceY", 8, 2, -1, 1, 147.625))
sketch5.addConstraint(Sketcher.Constraint("DistanceY", 16, 2, -1, 1, 62.375))
sketch5.addConstraint(Sketcher.Constraint("DistanceX", 24, 2, -1, 1, 62.375))
sketch5.addConstraint(Sketcher.Constraint("DistanceX", 28, 2, -1, 1, 147.625))
sketch5.addConstraint(Sketcher.Constraint("DistanceY", 1, 3, 0, 3, 42.625))
sketch5.addConstraint(Sketcher.Constraint("DistanceX", 3, 3, 2, 3, 42.625))
sketch5.addConstraint(Sketcher.Constraint("DistanceY", 0, 3, -1, 1, 78.6875))
sketch5.addConstraint(Sketcher.Constraint("DistanceX", 2, 3, -1, 1, 78.6875))
pocket4 = body.newObject("PartDesign::Pocket", "Pocket003")
pocket4.Profile = sketch5
pocket4.Type = "ThroughAll"

doc.recompute()
